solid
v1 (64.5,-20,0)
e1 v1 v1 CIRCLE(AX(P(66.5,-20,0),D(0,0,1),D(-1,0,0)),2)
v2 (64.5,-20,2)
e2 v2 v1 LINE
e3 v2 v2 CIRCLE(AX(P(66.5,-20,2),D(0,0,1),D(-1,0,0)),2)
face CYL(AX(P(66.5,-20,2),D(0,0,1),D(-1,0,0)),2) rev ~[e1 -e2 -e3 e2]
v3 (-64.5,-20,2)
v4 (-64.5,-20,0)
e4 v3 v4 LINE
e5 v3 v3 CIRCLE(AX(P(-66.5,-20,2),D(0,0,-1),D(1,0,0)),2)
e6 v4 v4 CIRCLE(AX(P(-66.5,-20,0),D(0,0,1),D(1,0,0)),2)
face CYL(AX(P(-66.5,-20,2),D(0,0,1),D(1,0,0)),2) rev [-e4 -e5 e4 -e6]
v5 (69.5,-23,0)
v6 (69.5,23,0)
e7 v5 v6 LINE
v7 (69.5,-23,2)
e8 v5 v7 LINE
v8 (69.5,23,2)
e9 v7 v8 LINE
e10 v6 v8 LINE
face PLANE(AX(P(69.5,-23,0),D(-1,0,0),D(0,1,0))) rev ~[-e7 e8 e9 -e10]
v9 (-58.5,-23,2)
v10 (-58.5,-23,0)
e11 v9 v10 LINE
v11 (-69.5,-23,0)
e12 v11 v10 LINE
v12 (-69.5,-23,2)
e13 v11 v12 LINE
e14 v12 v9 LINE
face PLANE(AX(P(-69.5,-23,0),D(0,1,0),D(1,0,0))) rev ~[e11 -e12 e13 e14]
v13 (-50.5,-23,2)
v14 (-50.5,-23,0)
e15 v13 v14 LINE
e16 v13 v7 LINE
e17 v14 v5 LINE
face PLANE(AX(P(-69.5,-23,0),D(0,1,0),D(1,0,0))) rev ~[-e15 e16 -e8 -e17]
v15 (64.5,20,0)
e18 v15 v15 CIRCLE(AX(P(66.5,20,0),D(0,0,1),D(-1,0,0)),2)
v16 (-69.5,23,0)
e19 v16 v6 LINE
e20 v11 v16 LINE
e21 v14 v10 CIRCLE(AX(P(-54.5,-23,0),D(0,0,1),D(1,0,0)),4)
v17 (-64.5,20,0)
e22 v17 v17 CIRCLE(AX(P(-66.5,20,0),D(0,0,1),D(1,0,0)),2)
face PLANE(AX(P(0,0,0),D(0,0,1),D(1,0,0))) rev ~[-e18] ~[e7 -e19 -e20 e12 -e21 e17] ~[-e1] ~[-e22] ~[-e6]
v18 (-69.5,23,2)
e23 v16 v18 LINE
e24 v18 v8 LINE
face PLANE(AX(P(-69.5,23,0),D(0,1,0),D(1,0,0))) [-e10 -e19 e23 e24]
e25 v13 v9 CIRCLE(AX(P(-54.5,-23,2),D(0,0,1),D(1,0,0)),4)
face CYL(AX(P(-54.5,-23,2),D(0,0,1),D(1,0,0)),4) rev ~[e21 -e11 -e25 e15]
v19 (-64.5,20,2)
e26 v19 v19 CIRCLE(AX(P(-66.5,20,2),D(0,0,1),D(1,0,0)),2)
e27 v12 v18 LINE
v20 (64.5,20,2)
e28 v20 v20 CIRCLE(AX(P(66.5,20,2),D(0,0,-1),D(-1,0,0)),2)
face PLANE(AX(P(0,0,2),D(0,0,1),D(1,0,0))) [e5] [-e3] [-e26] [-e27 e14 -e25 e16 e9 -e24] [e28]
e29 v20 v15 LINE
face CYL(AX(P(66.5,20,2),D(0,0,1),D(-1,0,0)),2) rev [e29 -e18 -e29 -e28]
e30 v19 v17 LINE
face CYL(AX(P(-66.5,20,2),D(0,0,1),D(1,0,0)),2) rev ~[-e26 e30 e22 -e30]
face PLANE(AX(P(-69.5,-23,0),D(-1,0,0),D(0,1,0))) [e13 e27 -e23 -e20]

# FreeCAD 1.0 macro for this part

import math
import FreeCAD as App
import Part
import Sketcher

V = App.Vector
Q = App.Units.Quantity


def add_polygon(sketch, points):
    """Adds a closed chain of lines whose ends are joined by coincident constraints."""
    first, n = sketch.GeometryCount, len(points)
    for a, b in zip(points, points[1:] + points[:1]):
        sketch.addGeometry(Part.LineSegment(App.Vector(*a, 0), App.Vector(*b, 0)), False)
    for i in range(n):
        sketch.addConstraint(Sketcher.Constraint("Coincident", first + i, 2, first + (i + 1) % n, 1))

doc = App.newDocument("Part")
body = doc.addObject("PartDesign::Body", "Body")

# Sketch on XY plane
sketch1 = body.newObject("Sketcher::SketchObject", "Sketch")
sketch1.AttachmentSupport = (doc.getObject("XY_Plane"), [""])
sketch1.MapMode = "FlatFace"
add_polygon(sketch1, [(-70, 23), (-70, -23), (70, -23), (70, 23)])  # lines 0-3
sketch1.addConstraint([
    Sketcher.Constraint("Vertical", 0),
    Sketcher.Constraint("Horizontal", 1),
    Sketcher.Constraint("Vertical", 2),
    Sketcher.Constraint("Horizontal", 3),
    Sketcher.Constraint("Symmetric", 0, 2, 2, 2, -1, 1),
    Sketcher.Constraint("DistanceX", 1, 1, 1, 2, Q("139 mm")),
    Sketcher.Constraint("DistanceY", 0, 2, 0, 1, Q("46 mm")),
])
pad1 = body.newObject("PartDesign::Pad", "Pad")
pad1.Profile = sketch1
pad1.Length = 2

# Sketch on XY plane
sketch2 = body.newObject("Sketcher::SketchObject", "Sketch001")
sketch2.AttachmentSupport = (doc.getObject("XY_Plane"), [""])
sketch2.MapMode = "FlatFace"
sketch2.AttachmentOffset = App.Placement(V(0, 0, 2), App.Rotation())
sketch2.addGeometry(Part.Circle(V(-66.5, 20, 0), V(0, 0, 1), 2), False)
sketch2.addConstraint([
    Sketcher.Constraint("Diameter", 0, Q("4 mm")),
    Sketcher.Constraint("DistanceY", -1, 1, 0, 3, Q("20 mm")),
    Sketcher.Constraint("DistanceX", 0, 3, -1, 1, Q("66.5 mm")),
])
pocket1 = body.newObject("PartDesign::Pocket", "Pocket")
pocket1.Profile = sketch2
pocket1.Type = "ThroughAll"

# Sketch on XY plane
sketch3 = body.newObject("Sketcher::SketchObject", "Sketch002")
sketch3.AttachmentSupport = (doc.getObject("XY_Plane"), [""])
sketch3.MapMode = "FlatFace"
sketch3.AttachmentOffset = App.Placement(V(0, 0, 2), App.Rotation())
sketch3.addGeometry(Part.Circle(V(66.5, 20, 0), V(0, 0, 1), 2), False)
sketch3.addConstraint([
    Sketcher.Constraint("Diameter", 0, Q("4 mm")),
    Sketcher.Constraint("DistanceY", -1, 1, 0, 3, Q("20 mm")),
    Sketcher.Constraint("DistanceX", -1, 1, 0, 3, Q("66.5 mm")),
])
pocket2 = body.newObject("PartDesign::Pocket", "Pocket001")
pocket2.Profile = sketch3
pocket2.Type = "ThroughAll"
doc.recompute()

mirrored = body.newObject("PartDesign::Mirrored", "Mirrored")
mirrored.Originals = [pocket1, pocket2]
mirrored.MirrorPlane = (doc.getObject("XZ_Plane"), [""])
body.Tip = mirrored

# Sketch on XY plane
sketch4 = body.newObject("Sketcher::SketchObject", "Sketch003")
sketch4.AttachmentSupport = (doc.getObject("XY_Plane"), [""])
sketch4.MapMode = "FlatFace"
sketch4.AttachmentOffset = App.Placement(V(0, 0, 2), App.Rotation())
sketch4.addGeometry([
    Part.ArcOfCircle(Part.Circle(V(-54.5, -23, 0), V(0, 0, 1), 4), math.radians(0), math.radians(180)),
    Part.LineSegment(V(-58.5, -23, 0), V(-50.5, -23, 0)),
], False)
sketch4.addConstraint([
    Sketcher.Constraint("Coincident", 0, 1, 1, 2),
    Sketcher.Constraint("Coincident", 1, 1, 0, 2),
    Sketcher.Constraint("Horizontal", 1),
    Sketcher.Constraint("Radius", 0, Q("4 mm")),
    Sketcher.Constraint("DistanceY", 0, 3, -1, 1, Q("23 mm")),
    Sketcher.Constraint("DistanceY", 0, 1, -1, 1, Q("23 mm")),
    Sketcher.Constraint("DistanceX", 0, 3, -1, 1, Q("54.5 mm")),
])
pocket3 = body.newObject("PartDesign::Pocket", "Pocket002")
pocket3.Profile = sketch4
pocket3.Type = "ThroughAll"

doc.recompute()
